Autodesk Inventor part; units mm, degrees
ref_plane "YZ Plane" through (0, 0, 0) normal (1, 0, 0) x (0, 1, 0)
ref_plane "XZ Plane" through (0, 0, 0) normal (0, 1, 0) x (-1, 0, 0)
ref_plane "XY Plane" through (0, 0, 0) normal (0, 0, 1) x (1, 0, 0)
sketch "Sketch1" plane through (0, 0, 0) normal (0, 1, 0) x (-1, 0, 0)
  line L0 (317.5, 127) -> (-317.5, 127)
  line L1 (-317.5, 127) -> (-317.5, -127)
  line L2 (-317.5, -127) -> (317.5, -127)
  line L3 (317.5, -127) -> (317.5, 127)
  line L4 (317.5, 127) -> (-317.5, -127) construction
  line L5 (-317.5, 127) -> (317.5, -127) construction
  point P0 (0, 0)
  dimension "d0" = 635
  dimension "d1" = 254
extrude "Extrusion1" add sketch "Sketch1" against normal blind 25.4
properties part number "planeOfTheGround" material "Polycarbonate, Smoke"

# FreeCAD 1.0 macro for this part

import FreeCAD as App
import Part
import Sketcher

V = App.Vector
Q = App.Units.Quantity


def add_polygon(sketch, points):
    """Adds a closed chain of lines whose ends are joined by coincident constraints."""
    first, n = sketch.GeometryCount, len(points)
    for a, b in zip(points, points[1:] + points[:1]):
        sketch.addGeometry(Part.LineSegment(App.Vector(*a, 0), App.Vector(*b, 0)), False)
    for i in range(n):
        sketch.addConstraint(Sketcher.Constraint("Coincident", first + i, 2, first + (i + 1) % n, 1))

doc = App.newDocument("Part")
params = doc.addObject("Spreadsheet::Sheet", "Params")
for row, (alias, value) in enumerate([
    ("sketch1_width", "25 in"),
    ("sketch1_height", "10 in"),
    ("pad1_length", "1 in"),
], start=1):
    params.set(f"A{row}", alias)
    params.set(f"B{row}", "=" + value)
    params.setAlias(f"B{row}", alias)

body = doc.addObject("PartDesign::Body", "Body")

# Sketch on XZ plane
sketch1 = doc.addObject("Sketcher::SketchObject", "Sketch")
body.addObject(sketch1)
sketch1.AttachmentSupport = (doc.XZ_Plane, [""])
sketch1.MapMode = "FlatFace"
add_polygon(sketch1, [(-317.5, -127), (-317.5, 127), (317.5, 127), (317.5, -127)])  # lines 0-3
sketch1.addConstraint(Sketcher.Constraint("Vertical", 0))
sketch1.addConstraint(Sketcher.Constraint("Horizontal", 1))
sketch1.addConstraint(Sketcher.Constraint("Vertical", 2))
sketch1.addConstraint(Sketcher.Constraint("Horizontal", 3))
sketch1.addConstraint(Sketcher.Constraint("Symmetric", 0, 2, 2, 2, -1, 1))
sketch1.addConstraint(Sketcher.Constraint("DistanceX", 1, 1, 1, 2, Q("25 in")))
sketch1.addConstraint(Sketcher.Constraint("DistanceY", 0, 1, 0, 2, Q("10 in")))
sketch1.setExpression("Constraints[9]", "Params.sketch1_width")
sketch1.setExpression("Constraints[10]", "Params.sketch1_height")
pad1 = doc.addObject("PartDesign::Pad", "Pad")
body.addObject(pad1)
pad1.Profile = sketch1
pad1.setExpression("Length", "Params.pad1_length")

doc.recompute()
